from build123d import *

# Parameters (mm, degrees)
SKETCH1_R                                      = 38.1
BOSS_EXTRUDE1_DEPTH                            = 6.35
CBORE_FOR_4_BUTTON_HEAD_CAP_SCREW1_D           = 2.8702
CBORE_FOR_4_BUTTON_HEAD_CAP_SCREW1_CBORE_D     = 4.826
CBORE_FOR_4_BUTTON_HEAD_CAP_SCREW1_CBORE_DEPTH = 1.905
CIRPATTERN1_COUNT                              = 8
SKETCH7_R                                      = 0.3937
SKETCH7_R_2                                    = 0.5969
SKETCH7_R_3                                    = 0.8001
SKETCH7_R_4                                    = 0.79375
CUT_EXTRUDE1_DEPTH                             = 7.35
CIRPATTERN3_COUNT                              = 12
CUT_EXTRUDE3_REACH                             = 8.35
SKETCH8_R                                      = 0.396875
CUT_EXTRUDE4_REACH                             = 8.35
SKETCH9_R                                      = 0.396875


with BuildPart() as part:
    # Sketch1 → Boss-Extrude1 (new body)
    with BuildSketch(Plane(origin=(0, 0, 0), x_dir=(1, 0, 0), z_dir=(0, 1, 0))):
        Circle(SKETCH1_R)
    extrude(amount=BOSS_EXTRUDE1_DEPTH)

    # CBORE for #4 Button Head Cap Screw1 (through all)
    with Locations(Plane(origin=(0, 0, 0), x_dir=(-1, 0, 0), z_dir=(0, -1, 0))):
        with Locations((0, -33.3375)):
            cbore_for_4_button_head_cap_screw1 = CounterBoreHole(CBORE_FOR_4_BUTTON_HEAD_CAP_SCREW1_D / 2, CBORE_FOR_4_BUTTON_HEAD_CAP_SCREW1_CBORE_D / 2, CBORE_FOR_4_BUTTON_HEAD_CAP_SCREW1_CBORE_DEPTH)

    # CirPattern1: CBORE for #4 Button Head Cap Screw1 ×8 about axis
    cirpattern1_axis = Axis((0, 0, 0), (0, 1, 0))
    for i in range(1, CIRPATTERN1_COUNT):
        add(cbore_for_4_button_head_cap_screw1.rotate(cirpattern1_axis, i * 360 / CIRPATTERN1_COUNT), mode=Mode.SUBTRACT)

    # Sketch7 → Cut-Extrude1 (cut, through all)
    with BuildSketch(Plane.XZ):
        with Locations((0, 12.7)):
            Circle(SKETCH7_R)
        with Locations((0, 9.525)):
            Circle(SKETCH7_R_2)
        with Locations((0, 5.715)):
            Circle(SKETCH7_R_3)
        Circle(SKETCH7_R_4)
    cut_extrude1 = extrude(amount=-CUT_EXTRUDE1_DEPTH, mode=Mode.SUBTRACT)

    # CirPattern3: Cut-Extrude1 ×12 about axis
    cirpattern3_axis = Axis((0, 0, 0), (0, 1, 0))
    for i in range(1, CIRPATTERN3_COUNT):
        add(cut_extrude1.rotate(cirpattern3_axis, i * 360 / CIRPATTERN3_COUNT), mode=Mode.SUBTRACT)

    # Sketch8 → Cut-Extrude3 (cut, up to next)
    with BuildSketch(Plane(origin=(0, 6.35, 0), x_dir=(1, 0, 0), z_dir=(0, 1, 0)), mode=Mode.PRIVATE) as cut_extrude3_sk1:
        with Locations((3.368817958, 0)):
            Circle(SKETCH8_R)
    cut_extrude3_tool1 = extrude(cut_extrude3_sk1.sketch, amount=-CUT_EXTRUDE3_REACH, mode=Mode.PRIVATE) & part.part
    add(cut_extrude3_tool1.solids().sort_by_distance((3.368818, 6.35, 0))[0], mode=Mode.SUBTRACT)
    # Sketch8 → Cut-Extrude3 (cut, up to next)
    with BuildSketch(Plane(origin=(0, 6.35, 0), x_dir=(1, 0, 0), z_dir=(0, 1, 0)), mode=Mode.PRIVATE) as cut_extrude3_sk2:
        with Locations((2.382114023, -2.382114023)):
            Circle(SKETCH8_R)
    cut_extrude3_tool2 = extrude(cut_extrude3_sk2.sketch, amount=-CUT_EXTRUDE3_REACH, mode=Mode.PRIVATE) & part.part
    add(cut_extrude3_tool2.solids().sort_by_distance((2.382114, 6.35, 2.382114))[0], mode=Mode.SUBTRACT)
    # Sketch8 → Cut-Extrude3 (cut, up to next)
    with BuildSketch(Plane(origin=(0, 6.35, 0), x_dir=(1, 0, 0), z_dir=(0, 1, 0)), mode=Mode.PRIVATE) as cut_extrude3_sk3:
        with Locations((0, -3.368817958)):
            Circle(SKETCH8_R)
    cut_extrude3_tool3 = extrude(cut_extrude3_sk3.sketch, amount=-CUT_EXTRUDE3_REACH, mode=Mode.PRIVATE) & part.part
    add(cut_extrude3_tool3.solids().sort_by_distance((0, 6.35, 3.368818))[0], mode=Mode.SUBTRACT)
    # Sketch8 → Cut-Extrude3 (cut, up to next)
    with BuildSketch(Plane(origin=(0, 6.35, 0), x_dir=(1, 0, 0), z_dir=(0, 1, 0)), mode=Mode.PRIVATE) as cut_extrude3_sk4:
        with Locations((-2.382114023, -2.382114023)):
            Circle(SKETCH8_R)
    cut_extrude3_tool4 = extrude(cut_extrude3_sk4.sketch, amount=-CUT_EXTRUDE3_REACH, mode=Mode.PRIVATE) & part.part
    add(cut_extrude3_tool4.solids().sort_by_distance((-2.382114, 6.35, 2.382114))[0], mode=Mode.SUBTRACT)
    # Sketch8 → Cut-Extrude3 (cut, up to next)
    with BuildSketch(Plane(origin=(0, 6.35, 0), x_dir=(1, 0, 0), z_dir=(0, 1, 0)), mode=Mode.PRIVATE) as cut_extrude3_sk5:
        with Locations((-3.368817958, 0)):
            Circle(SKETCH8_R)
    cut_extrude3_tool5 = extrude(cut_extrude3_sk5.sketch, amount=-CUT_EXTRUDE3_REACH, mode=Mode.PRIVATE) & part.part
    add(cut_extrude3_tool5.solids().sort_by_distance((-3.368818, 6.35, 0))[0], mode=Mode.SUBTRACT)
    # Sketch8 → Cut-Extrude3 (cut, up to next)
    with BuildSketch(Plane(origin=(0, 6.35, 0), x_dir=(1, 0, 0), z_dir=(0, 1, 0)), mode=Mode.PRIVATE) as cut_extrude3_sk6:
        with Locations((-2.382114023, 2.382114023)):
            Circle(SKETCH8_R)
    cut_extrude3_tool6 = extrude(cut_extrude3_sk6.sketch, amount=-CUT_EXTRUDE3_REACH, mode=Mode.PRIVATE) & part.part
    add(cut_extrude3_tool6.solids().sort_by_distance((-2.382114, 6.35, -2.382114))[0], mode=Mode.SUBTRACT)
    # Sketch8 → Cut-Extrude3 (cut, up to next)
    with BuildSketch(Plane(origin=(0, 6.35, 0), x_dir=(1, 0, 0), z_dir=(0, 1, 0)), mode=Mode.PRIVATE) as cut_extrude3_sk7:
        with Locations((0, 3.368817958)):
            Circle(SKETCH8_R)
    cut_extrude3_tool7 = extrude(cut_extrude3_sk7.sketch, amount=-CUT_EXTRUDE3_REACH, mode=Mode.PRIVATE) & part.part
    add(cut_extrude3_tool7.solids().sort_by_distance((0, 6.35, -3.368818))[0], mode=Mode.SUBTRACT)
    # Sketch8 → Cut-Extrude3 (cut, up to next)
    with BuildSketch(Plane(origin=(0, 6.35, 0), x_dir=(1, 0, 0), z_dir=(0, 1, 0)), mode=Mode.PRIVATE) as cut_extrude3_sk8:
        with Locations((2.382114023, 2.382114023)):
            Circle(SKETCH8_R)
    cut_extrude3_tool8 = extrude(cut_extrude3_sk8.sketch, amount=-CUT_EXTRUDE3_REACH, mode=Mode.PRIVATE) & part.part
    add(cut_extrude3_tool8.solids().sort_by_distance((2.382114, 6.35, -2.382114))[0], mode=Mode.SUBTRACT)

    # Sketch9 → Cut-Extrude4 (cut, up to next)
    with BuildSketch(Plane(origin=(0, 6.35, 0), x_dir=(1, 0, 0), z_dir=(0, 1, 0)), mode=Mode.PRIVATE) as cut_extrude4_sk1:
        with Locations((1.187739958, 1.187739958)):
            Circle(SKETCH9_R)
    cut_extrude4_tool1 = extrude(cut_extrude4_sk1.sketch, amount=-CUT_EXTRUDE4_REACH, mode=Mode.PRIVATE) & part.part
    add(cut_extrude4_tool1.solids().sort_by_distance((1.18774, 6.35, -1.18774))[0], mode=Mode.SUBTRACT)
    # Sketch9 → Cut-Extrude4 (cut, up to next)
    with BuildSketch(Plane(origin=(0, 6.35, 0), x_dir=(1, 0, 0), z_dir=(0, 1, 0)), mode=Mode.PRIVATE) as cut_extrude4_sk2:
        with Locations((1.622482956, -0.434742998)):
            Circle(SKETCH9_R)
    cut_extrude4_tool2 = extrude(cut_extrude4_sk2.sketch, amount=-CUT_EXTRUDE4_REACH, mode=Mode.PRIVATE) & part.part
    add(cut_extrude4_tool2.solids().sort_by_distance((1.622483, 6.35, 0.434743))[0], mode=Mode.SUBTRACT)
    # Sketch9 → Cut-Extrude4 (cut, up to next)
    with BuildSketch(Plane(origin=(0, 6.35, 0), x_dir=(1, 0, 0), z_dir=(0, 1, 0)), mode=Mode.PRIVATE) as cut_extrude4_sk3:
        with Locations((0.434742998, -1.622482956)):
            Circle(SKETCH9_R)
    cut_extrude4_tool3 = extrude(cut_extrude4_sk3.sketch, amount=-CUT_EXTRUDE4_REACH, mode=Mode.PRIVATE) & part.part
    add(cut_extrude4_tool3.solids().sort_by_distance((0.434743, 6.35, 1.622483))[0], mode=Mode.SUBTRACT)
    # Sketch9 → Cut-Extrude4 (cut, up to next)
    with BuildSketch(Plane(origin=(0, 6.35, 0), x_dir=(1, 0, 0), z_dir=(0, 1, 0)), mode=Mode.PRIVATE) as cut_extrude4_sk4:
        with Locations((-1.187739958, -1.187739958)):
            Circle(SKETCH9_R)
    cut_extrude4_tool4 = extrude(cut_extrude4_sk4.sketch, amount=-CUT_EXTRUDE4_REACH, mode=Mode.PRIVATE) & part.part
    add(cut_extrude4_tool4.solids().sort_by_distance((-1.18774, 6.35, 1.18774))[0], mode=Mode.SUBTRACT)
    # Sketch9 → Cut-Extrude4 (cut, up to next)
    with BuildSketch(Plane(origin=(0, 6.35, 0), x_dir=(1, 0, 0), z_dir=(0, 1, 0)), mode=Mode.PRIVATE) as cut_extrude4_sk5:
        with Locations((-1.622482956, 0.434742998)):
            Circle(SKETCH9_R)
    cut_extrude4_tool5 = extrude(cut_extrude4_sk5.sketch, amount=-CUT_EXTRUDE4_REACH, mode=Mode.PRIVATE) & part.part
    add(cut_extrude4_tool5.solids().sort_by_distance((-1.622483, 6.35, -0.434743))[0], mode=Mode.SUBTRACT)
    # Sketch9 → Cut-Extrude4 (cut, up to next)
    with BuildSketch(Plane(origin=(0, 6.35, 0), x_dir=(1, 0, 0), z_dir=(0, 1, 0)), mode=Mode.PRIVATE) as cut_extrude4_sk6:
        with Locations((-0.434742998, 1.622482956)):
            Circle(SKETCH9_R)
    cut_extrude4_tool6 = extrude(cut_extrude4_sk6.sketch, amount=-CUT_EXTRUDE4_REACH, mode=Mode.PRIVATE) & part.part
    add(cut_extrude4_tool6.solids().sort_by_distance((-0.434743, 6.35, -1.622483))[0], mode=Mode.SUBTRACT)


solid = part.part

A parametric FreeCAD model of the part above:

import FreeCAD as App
import Part
import Sketcher
from FreeCAD import Vector
Q = App.Units.Quantity

doc = App.newDocument("Part")
body = doc.addObject("PartDesign::Body", "Body")

# Sketch on XZ plane
sketch1 = body.newObject("Sketcher::SketchObject", "Sketch")
sketch1.AttachmentSupport = (doc.getObject("XZ_Plane"), [""])
sketch1.MapMode = "FlatFace"
sketch1.addGeometry(Part.Circle(Vector(0, 0, 0), Vector(0, 0, 1), 38), False)
sketch1.addConstraint(Sketcher.Constraint("Coincident", 0, 3, -1, 1))
sketch1.addConstraint(Sketcher.Constraint("Diameter", 0, Q("3 in")))
pad1 = body.newObject("PartDesign::Pad", "Pad")
pad1.Profile = sketch1
pad1.Length = Q("0.25 in")
pad1.Reversed = True

# Sketch on XZ plane
sketch2 = body.newObject("Sketcher::SketchObject", "Sketch001")
sketch2.AttachmentSupport = (doc.getObject("XZ_Plane"), [""])
sketch2.MapMode = "FlatFace"
sketch2.addGeometry(Part.Circle(Vector(0, 33.3, 0), Vector(0, 0, 1), 1.4), False)
sketch2.addConstraint(Sketcher.Constraint("PointOnObject", 0, 3, -2))
sketch2.addConstraint(Sketcher.Constraint("Diameter", 0, Q("0.113 in")))
sketch2.addConstraint(Sketcher.Constraint("DistanceY", -1, 1, 0, 3, Q("1.3125 in")))
doc.recompute()
hole = body.newObject("PartDesign::Hole", "Hole")
hole.Profile = sketch2
hole.ThreadType = "None"
hole.Diameter = Q("0.113 in")
hole.DepthType = "ThroughAll"
hole.HoleCutType = "Counterbore"
hole.HoleCutDiameter = Q("0.19 in")
hole.HoleCutDepth = Q("0.075 in")
doc.recompute()

polarpattern = body.newObject("PartDesign::PolarPattern", "PolarPattern")
polarpattern.Originals = [hole]
polarpattern.Axis = (doc.getObject("Y_Axis"), [""])
polarpattern.Angle = 360
polarpattern.Occurrences = 8
body.Tip = polarpattern

# Sketch on XZ plane
sketch3 = body.newObject("Sketcher::SketchObject", "Sketch002")
sketch3.AttachmentSupport = (doc.getObject("XZ_Plane"), [""])
sketch3.MapMode = "FlatFace"
sketch3.addGeometry(Part.Circle(Vector(0, 12.7, 0), Vector(0, 0, 1), 0.39), False)
sketch3.addGeometry(Part.Circle(Vector(0, 9.53, 0), Vector(0, 0, 1), 0.6), False)
sketch3.addGeometry(Part.Circle(Vector(0, 5.71, 0), Vector(0, 0, 1), 0.8), False)
sketch3.addGeometry(Part.Circle(Vector(0, 0, 0), Vector(0, 0, 1), 0.79), False)
sketch3.addConstraint(Sketcher.Constraint("Coincident", 3, 3, -1, 1))
sketch3.addConstraint(Sketcher.Constraint("PointOnObject", 0, 3, -2))
sketch3.addConstraint(Sketcher.Constraint("PointOnObject", 1, 3, -2))
sketch3.addConstraint(Sketcher.Constraint("PointOnObject", 2, 3, -2))
sketch3.addConstraint(Sketcher.Constraint("Diameter", 0, Q("0.031 in")))
sketch3.addConstraint(Sketcher.Constraint("Diameter", 1, Q("0.047 in")))
sketch3.addConstraint(Sketcher.Constraint("Diameter", 2, Q("0.063 in")))
sketch3.addConstraint(Sketcher.Constraint("Diameter", 3, Q("0.0625 in")))
sketch3.addConstraint(Sketcher.Constraint("DistanceY", -1, 1, 0, 3, Q("0.5 in")))
sketch3.addConstraint(Sketcher.Constraint("DistanceY", 2, 3, 1, 3, Q("0.15 in")))
sketch3.addConstraint(Sketcher.Constraint("DistanceY", -1, 1, 1, 3, Q("0.375 in")))
pocket1 = body.newObject("PartDesign::Pocket", "Pocket")
pocket1.Profile = sketch3
pocket1.Type = "ThroughAll"
doc.recompute()

polarpattern2 = body.newObject("PartDesign::PolarPattern", "PolarPattern001")
polarpattern2.Originals = [pocket1]
polarpattern2.Axis = (doc.getObject("Y_Axis"), [""])
polarpattern2.Angle = 360
polarpattern2.Occurrences = 12
body.Tip = polarpattern2

# Sketch on XZ plane
sketch4 = body.newObject("Sketcher::SketchObject", "Sketch003")
sketch4.AttachmentSupport = (doc.getObject("XZ_Plane"), [""])
sketch4.MapMode = "FlatFace"
sketch4.AttachmentOffset = App.Placement(Vector(0, 0, -0.25 * 25.4), App.Rotation())
sketch4.addGeometry(Part.Circle(Vector(3.37, 0, 0), Vector(0, 0, 1), 0.4), False)
sketch4.addConstraint(Sketcher.Constraint("PointOnObject", 0, 3, -1))
sketch4.addConstraint(Sketcher.Constraint("Diameter", 0, Q("0.03125 in")))
sketch4.addConstraint(Sketcher.Constraint("DistanceX", -1, 1, 0, 3, Q("3.368818 mm")))
pocket2 = body.newObject("PartDesign::Pocket", "Pocket001")
pocket2.Profile = sketch4
pocket2.Type = "UpToFirst"
pocket2.Reversed = True

# Sketch on XZ plane
sketch5 = body.newObject("Sketcher::SketchObject", "Sketch004")
sketch5.AttachmentSupport = (doc.getObject("XZ_Plane"), [""])
sketch5.MapMode = "FlatFace"
sketch5.AttachmentOffset = App.Placement(Vector(0, 0, -0.25 * 25.4), App.Rotation())
sketch5.addGeometry(Part.Circle(Vector(2.38, 2.38, 0), Vector(0, 0, 1), 0.4), False)
sketch5.addConstraint(Sketcher.Constraint("Diameter", 0, Q("0.03125 in")))
sketch5.addConstraint(Sketcher.Constraint("DistanceX", -1, 1, 0, 3, Q("2.382114 mm")))
sketch5.addConstraint(Sketcher.Constraint("DistanceY", -1, 1, 0, 3, Q("2.382114 mm")))
pocket3 = body.newObject("PartDesign::Pocket", "Pocket002")
pocket3.Profile = sketch5
pocket3.Type = "UpToFirst"
pocket3.Reversed = True

# Sketch on XZ plane
sketch6 = body.newObject("Sketcher::SketchObject", "Sketch005")
sketch6.AttachmentSupport = (doc.getObject("XZ_Plane"), [""])
sketch6.MapMode = "FlatFace"
sketch6.AttachmentOffset = App.Placement(Vector(0, 0, -0.25 * 25.4), App.Rotation())
sketch6.addGeometry(Part.Circle(Vector(0, 3.37, 0), Vector(0, 0, 1), 0.4), False)
sketch6.addConstraint(Sketcher.Constraint("PointOnObject", 0, 3, -2))
sketch6.addConstraint(Sketcher.Constraint("Diameter", 0, Q("0.03125 in")))
sketch6.addConstraint(Sketcher.Constraint("DistanceY", -1, 1, 0, 3, Q("3.368818 mm")))
pocket4 = body.newObject("PartDesign::Pocket", "Pocket003")
pocket4.Profile = sketch6
pocket4.Type = "UpToFirst"
pocket4.Reversed = True

# Sketch on XZ plane
sketch7 = body.newObject("Sketcher::SketchObject", "Sketch006")
sketch7.AttachmentSupport = (doc.getObject("XZ_Plane"), [""])
sketch7.MapMode = "FlatFace"
sketch7.AttachmentOffset = App.Placement(Vector(0, 0, -0.25 * 25.4), App.Rotation())
sketch7.addGeometry(Part.Circle(Vector(-2.38, 2.38, 0), Vector(0, 0, 1), 0.4), False)
sketch7.addConstraint(Sketcher.Constraint("Diameter", 0, Q("0.03125 in")))
sketch7.addConstraint(Sketcher.Constraint("DistanceX", 0, 3, -1, 1, Q("2.382114 mm")))
sketch7.addConstraint(Sketcher.Constraint("DistanceY", -1, 1, 0, 3, Q("2.382114 mm")))
pocket5 = body.newObject("PartDesign::Pocket", "Pocket004")
pocket5.Profile = sketch7
pocket5.Type = "UpToFirst"
pocket5.Reversed = True

# Sketch on XZ plane
sketch8 = body.newObject("Sketcher::SketchObject", "Sketch007")
sketch8.AttachmentSupport = (doc.getObject("XZ_Plane"), [""])
sketch8.MapMode = "FlatFace"
sketch8.AttachmentOffset = App.Placement(Vector(0, 0, -0.25 * 25.4), App.Rotation())
sketch8.addGeometry(Part.Circle(Vector(-3.37, 0, 0), Vector(0, 0, 1), 0.4), False)
sketch8.addConstraint(Sketcher.Constraint("PointOnObject", 0, 3, -1))
sketch8.addConstraint(Sketcher.Constraint("Diameter", 0, Q("0.03125 in")))
sketch8.addConstraint(Sketcher.Constraint("DistanceX", 0, 3, -1, 1, Q("3.368818 mm")))
pocket6 = body.newObject("PartDesign::Pocket", "Pocket005")
pocket6.Profile = sketch8
pocket6.Type = "UpToFirst"
pocket6.Reversed = True

# Sketch on XZ plane
sketch9 = body.newObject("Sketcher::SketchObject", "Sketch008")
sketch9.AttachmentSupport = (doc.getObject("XZ_Plane"), [""])
sketch9.MapMode = "FlatFace"
sketch9.AttachmentOffset = App.Placement(Vector(0, 0, -0.25 * 25.4), App.Rotation())
sketch9.addGeometry(Part.Circle(Vector(-2.38, -2.38, 0), Vector(0, 0, 1), 0.4), False)
sketch9.addConstraint(Sketcher.Constraint("Diameter", 0, Q("0.03125 in")))
sketch9.addConstraint(Sketcher.Constraint("DistanceX", 0, 3, -1, 1, Q("2.382114 mm")))
sketch9.addConstraint(Sketcher.Constraint("DistanceY", 0, 3, -1, 1, Q("2.382114 mm")))
pocket7 = body.newObject("PartDesign::Pocket", "Pocket006")
pocket7.Profile = sketch9
pocket7.Type = "UpToFirst"
pocket7.Reversed = True

# Sketch on XZ plane
sketch10 = body.newObject("Sketcher::SketchObject", "Sketch009")
sketch10.AttachmentSupport = (doc.getObject("XZ_Plane"), [""])
sketch10.MapMode = "FlatFace"
sketch10.AttachmentOffset = App.Placement(Vector(0, 0, -0.25 * 25.4), App.Rotation())
sketch10.addGeometry(Part.Circle(Vector(0, -3.37, 0), Vector(0, 0, 1), 0.4), False)
sketch10.addConstraint(Sketcher.Constraint("PointOnObject", 0, 3, -2))
sketch10.addConstraint(Sketcher.Constraint("Diameter", 0, Q("0.03125 in")))
sketch10.addConstraint(Sketcher.Constraint("DistanceY", 0, 3, -1, 1, Q("3.368818 mm")))
pocket8 = body.newObject("PartDesign::Pocket", "Pocket007")
pocket8.Profile = sketch10
pocket8.Type = "UpToFirst"
pocket8.Reversed = True

# Sketch on XZ plane
sketch11 = body.newObject("Sketcher::SketchObject", "Sketch010")
sketch11.AttachmentSupport = (doc.getObject("XZ_Plane"), [""])
sketch11.MapMode = "FlatFace"
sketch11.AttachmentOffset = App.Placement(Vector(0, 0, -0.25 * 25.4), App.Rotation())
sketch11.addGeometry(Part.Circle(Vector(2.38, -2.38, 0), Vector(0, 0, 1), 0.4), False)
sketch11.addConstraint(Sketcher.Constraint("Diameter", 0, Q("0.03125 in")))
sketch11.addConstraint(Sketcher.Constraint("DistanceX", -1, 1, 0, 3, Q("2.382114 mm")))
sketch11.addConstraint(Sketcher.Constraint("DistanceY", 0, 3, -1, 1, Q("2.382114 mm")))
pocket9 = body.newObject("PartDesign::Pocket", "Pocket008")
pocket9.Profile = sketch11
pocket9.Type = "UpToFirst"
pocket9.Reversed = True

# Sketch on XZ plane
sketch12 = body.newObject("Sketcher::SketchObject", "Sketch011")
sketch12.AttachmentSupport = (doc.getObject("XZ_Plane"), [""])
sketch12.MapMode = "FlatFace"
sketch12.AttachmentOffset = App.Placement(Vector(0, 0, -0.25 * 25.4), App.Rotation())
sketch12.addGeometry(Part.Circle(Vector(1.19, -1.19, 0), Vector(0, 0, 1), 0.4), False)
sketch12.addConstraint(Sketcher.Constraint("Diameter", 0, Q("0.03125 in")))
sketch12.addConstraint(Sketcher.Constraint("DistanceX", -1, 1, 0, 3, Q("1.18774 mm")))
sketch12.addConstraint(Sketcher.Constraint("DistanceY", 0, 3, -1, 1, Q("1.18774 mm")))
pocket10 = body.newObject("PartDesign::Pocket", "Pocket009")
pocket10.Profile = sketch12
pocket10.Type = "UpToFirst"
pocket10.Reversed = True

# Sketch on XZ plane
sketch13 = body.newObject("Sketcher::SketchObject", "Sketch012")
sketch13.AttachmentSupport = (doc.getObject("XZ_Plane"), [""])
sketch13.MapMode = "FlatFace"
sketch13.AttachmentOffset = App.Placement(Vector(0, 0, -0.25 * 25.4), App.Rotation())
sketch13.addGeometry(Part.Circle(Vector(1.62, 0.43, 0), Vector(0, 0, 1), 0.4), False)
sketch13.addConstraint(Sketcher.Constraint("Diameter", 0, Q("0.03125 in")))
sketch13.addConstraint(Sketcher.Constraint("DistanceX", -1, 1, 0, 3, Q("1.622483 mm")))
sketch13.addConstraint(Sketcher.Constraint("DistanceY", -1, 1, 0, 3, Q("0.434743 mm")))
pocket11 = body.newObject("PartDesign::Pocket", "Pocket010")
pocket11.Profile = sketch13
pocket11.Type = "UpToFirst"
pocket11.Reversed = True

# Sketch on XZ plane
sketch14 = body.newObject("Sketcher::SketchObject", "Sketch013")
sketch14.AttachmentSupport = (doc.getObject("XZ_Plane"), [""])
sketch14.MapMode = "FlatFace"
sketch14.AttachmentOffset = App.Placement(Vector(0, 0, -0.25 * 25.4), App.Rotation())
sketch14.addGeometry(Part.Circle(Vector(0.43, 1.62, 0), Vector(0, 0, 1), 0.4), False)
sketch14.addConstraint(Sketcher.Constraint("Diameter", 0, Q("0.03125 in")))
sketch14.addConstraint(Sketcher.Constraint("DistanceX", -1, 1, 0, 3, Q("0.434743 mm")))
sketch14.addConstraint(Sketcher.Constraint("DistanceY", -1, 1, 0, 3, Q("1.622483 mm")))
pocket12 = body.newObject("PartDesign::Pocket", "Pocket011")
pocket12.Profile = sketch14
pocket12.Type = "UpToFirst"
pocket12.Reversed = True

# Sketch on XZ plane
sketch15 = body.newObject("Sketcher::SketchObject", "Sketch014")
sketch15.AttachmentSupport = (doc.getObject("XZ_Plane"), [""])
sketch15.MapMode = "FlatFace"
sketch15.AttachmentOffset = App.Placement(Vector(0, 0, -0.25 * 25.4), App.Rotation())
sketch15.addGeometry(Part.Circle(Vector(-1.19, 1.19, 0), Vector(0, 0, 1), 0.4), False)
sketch15.addConstraint(Sketcher.Constraint("Diameter", 0, Q("0.03125 in")))
sketch15.addConstraint(Sketcher.Constraint("DistanceX", 0, 3, -1, 1, Q("1.18774 mm")))
sketch15.addConstraint(Sketcher.Constraint("DistanceY", -1, 1, 0, 3, Q("1.18774 mm")))
pocket13 = body.newObject("PartDesign::Pocket", "Pocket012")
pocket13.Profile = sketch15
pocket13.Type = "UpToFirst"
pocket13.Reversed = True

# Sketch on XZ plane
sketch16 = body.newObject("Sketcher::SketchObject", "Sketch015")
sketch16.AttachmentSupport = (doc.getObject("XZ_Plane"), [""])
sketch16.MapMode = "FlatFace"
sketch16.AttachmentOffset = App.Placement(Vector(0, 0, -0.25 * 25.4), App.Rotation())
sketch16.addGeometry(Part.Circle(Vector(-1.62, -0.43, 0), Vector(0, 0, 1), 0.4), False)
sketch16.addConstraint(Sketcher.Constraint("Diameter", 0, Q("0.03125 in")))
sketch16.addConstraint(Sketcher.Constraint("DistanceX", 0, 3, -1, 1, Q("1.622483 mm")))
sketch16.addConstraint(Sketcher.Constraint("DistanceY", 0, 3, -1, 1, Q("0.434743 mm")))
pocket14 = body.newObject("PartDesign::Pocket", "Pocket013")
pocket14.Profile = sketch16
pocket14.Type = "UpToFirst"
pocket14.Reversed = True

# Sketch on XZ plane
sketch17 = body.newObject("Sketcher::SketchObject", "Sketch016")
sketch17.AttachmentSupport = (doc.getObject("XZ_Plane"), [""])
sketch17.MapMode = "FlatFace"
sketch17.AttachmentOffset = App.Placement(Vector(0, 0, -0.25 * 25.4), App.Rotation())
sketch17.addGeometry(Part.Circle(Vector(-0.43, -1.62, 0), Vector(0, 0, 1), 0.4), False)
sketch17.addConstraint(Sketcher.Constraint("Diameter", 0, Q("0.03125 in")))
sketch17.addConstraint(Sketcher.Constraint("DistanceX", 0, 3, -1, 1, Q("0.434743 mm")))
sketch17.addConstraint(Sketcher.Constraint("DistanceY", 0, 3, -1, 1, Q("1.622483 mm")))
pocket15 = body.newObject("PartDesign::Pocket", "Pocket014")
pocket15.Profile = sketch17
pocket15.Type = "UpToFirst"
pocket15.Reversed = True

doc.recompute()
